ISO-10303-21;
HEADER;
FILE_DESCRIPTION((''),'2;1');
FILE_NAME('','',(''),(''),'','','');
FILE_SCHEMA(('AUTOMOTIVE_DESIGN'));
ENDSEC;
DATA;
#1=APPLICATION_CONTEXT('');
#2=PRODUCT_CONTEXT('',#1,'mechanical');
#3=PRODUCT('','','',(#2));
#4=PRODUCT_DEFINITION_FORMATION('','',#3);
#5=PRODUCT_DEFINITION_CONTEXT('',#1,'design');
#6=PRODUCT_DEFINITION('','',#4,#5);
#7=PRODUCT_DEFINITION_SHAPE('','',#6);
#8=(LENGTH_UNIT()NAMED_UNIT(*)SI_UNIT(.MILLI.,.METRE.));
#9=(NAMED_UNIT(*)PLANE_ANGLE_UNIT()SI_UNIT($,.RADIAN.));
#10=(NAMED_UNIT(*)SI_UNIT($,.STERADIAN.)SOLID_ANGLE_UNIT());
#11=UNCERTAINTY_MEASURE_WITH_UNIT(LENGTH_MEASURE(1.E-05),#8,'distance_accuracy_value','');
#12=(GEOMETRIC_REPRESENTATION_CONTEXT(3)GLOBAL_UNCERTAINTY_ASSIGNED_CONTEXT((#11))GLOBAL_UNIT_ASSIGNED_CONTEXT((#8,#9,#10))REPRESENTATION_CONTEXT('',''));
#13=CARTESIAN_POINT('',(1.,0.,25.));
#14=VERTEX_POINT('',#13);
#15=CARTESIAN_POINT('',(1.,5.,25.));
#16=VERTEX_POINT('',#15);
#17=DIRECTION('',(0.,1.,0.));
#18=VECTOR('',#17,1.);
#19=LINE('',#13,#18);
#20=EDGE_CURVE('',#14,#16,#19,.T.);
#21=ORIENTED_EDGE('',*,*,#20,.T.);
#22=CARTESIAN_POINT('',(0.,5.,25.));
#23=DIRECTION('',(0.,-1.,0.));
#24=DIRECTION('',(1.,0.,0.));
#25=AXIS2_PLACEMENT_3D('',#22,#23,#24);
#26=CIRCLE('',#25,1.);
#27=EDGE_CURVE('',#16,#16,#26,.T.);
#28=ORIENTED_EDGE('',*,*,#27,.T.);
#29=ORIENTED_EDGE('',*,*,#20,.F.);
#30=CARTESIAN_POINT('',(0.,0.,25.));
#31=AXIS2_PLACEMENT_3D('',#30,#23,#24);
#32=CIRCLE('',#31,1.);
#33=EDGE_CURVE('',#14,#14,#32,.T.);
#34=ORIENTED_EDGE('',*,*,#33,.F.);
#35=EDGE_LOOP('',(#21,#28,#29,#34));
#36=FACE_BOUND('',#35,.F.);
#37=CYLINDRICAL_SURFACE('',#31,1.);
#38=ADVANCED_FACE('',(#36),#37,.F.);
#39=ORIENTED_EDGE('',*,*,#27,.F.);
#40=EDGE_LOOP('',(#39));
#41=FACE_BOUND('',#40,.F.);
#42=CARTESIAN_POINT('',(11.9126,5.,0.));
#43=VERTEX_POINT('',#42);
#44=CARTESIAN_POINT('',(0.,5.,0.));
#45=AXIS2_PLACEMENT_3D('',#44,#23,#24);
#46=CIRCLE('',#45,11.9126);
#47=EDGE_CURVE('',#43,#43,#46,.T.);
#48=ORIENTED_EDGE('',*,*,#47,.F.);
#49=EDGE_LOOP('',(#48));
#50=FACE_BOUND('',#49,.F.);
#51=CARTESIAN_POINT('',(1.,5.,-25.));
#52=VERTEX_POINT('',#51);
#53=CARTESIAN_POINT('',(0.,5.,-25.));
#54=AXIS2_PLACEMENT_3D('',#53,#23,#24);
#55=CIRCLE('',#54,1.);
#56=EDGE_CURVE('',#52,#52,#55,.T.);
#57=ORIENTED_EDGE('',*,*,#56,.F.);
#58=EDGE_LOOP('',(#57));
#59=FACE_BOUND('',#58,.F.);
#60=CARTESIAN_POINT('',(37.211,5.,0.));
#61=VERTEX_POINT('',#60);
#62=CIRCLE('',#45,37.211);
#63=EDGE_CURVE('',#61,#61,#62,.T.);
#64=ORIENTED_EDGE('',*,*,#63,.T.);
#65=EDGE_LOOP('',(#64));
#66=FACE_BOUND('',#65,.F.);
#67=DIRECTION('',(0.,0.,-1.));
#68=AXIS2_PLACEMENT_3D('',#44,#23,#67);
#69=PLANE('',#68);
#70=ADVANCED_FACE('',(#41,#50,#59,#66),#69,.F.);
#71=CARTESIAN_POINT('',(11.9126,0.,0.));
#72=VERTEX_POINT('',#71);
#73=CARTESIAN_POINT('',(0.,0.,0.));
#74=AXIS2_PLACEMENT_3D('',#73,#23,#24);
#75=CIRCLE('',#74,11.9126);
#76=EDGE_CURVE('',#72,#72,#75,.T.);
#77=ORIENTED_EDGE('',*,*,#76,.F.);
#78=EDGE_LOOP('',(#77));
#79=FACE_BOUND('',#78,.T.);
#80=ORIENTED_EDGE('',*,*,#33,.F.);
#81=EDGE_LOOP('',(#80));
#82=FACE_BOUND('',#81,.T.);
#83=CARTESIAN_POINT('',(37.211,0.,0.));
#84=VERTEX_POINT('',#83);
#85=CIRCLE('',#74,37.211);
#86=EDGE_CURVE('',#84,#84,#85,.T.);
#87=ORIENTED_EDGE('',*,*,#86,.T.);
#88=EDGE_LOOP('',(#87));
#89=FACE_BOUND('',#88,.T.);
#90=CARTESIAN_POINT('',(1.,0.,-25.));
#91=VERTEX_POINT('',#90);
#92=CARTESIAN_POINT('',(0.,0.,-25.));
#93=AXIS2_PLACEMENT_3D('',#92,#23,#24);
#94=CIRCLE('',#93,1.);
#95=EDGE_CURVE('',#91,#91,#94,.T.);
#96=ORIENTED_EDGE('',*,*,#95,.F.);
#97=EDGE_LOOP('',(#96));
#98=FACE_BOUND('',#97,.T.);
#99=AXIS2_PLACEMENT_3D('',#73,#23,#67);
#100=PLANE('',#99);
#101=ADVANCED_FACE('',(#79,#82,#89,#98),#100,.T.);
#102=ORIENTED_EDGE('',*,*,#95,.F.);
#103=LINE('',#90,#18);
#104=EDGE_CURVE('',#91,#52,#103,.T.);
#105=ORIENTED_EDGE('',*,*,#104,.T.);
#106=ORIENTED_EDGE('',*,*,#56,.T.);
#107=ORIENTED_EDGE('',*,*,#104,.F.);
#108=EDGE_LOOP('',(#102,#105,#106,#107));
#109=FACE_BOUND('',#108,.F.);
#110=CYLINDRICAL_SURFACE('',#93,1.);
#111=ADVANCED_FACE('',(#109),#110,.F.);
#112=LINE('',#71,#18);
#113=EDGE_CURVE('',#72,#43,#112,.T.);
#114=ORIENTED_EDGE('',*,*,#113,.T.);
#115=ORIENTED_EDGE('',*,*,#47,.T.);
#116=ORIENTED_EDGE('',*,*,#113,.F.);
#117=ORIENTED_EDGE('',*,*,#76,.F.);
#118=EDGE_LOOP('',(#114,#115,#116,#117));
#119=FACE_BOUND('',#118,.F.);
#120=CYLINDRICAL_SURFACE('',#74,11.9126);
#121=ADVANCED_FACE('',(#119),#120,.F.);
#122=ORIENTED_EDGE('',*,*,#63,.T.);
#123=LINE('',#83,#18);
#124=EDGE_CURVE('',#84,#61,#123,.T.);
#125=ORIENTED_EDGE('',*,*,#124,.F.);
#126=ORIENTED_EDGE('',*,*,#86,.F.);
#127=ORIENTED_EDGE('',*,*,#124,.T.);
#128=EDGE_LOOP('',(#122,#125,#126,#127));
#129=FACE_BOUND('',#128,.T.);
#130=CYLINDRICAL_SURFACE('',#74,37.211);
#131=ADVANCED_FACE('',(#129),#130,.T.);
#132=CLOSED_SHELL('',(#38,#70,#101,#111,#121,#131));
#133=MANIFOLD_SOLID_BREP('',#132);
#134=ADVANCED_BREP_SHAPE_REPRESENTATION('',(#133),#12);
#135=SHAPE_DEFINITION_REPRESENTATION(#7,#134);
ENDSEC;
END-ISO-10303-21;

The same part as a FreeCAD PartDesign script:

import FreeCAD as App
import Part
import Sketcher
from FreeCAD import Vector

doc = App.newDocument("Part")
body = doc.addObject("PartDesign::Body", "Body")

# Sketch on XZ plane
sketch1 = doc.addObject("Sketcher::SketchObject", "Sketch")
body.addObject(sketch1)
sketch1.AttachmentSupport = (doc.XZ_Plane, [""])
sketch1.MapMode = "FlatFace"
sketch1.addGeometry([
    Part.Circle(Vector(0, 0, 0), Vector(0, 0, 1), 37),
    Part.Circle(Vector(0, 0, 0), Vector(0, 0, 1), 12),
], False)
sketch1.addConstraint([
    Sketcher.Constraint("Coincident", 0, 3, -1, 1),
    Sketcher.Constraint("Coincident", 1, 3, -1, 1),
    Sketcher.Constraint("Diameter", 0, 74.422),
    Sketcher.Constraint("Diameter", 1, 23.8252),
])
pad1 = doc.addObject("PartDesign::Pad", "Pad")
body.addObject(pad1)
pad1.Profile = sketch1
pad1.Length = 5
pad1.Reversed = True

# Sketch on XZ plane
sketch2 = doc.addObject("Sketcher::SketchObject", "Sketch001")
body.addObject(sketch2)
sketch2.AttachmentSupport = (doc.XZ_Plane, [""])
sketch2.MapMode = "FlatFace"
sketch2.addGeometry([
    Part.Circle(Vector(0, 25, 0), Vector(0, 0, 1), 1),
    Part.Circle(Vector(0, -25, 0), Vector(0, 0, 1), 1),
], False)
sketch2.addConstraint([
    Sketcher.Constraint("Equal", 0, 1),
    Sketcher.Constraint("Symmetric", 0, 3, 1, 3, -1, 1),
    Sketcher.Constraint("PointOnObject", 0, 3, -2),
    Sketcher.Constraint("Diameter", 0, 2.0),
    Sketcher.Constraint("DistanceY", -1, 1, 0, 3, 25.0),
])
pocket1 = doc.addObject("PartDesign::Pocket", "Pocket")
body.addObject(pocket1)
pocket1.Profile = sketch2
pocket1.Length = 5

doc.recompute()
